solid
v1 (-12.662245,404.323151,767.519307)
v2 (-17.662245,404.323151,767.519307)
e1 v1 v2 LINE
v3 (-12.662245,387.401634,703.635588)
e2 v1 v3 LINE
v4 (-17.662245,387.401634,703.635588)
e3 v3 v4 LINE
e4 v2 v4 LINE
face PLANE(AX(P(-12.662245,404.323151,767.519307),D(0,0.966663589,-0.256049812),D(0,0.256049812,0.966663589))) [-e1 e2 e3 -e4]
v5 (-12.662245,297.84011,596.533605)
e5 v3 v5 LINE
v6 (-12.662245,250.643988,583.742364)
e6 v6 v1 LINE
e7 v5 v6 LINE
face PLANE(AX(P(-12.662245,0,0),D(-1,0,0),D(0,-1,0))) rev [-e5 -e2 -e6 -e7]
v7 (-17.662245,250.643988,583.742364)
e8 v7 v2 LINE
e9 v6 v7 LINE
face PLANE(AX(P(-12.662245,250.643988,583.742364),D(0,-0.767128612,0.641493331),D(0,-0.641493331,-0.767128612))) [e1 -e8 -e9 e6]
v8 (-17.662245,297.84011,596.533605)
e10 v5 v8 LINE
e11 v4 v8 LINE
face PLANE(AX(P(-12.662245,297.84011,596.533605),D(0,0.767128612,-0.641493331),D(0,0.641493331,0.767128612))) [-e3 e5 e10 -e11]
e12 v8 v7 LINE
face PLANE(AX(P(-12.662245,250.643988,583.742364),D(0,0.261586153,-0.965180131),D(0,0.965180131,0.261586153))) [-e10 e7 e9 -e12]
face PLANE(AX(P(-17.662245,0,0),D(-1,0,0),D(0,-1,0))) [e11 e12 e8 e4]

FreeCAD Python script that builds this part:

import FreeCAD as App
import Part
import Sketcher

doc = App.newDocument("Part")
params = doc.addObject("Spreadsheet::Sheet", "Params")
for row, (alias, value) in enumerate([
    ("pad1_length", "5 mm"),
], start=1):
    params.set(f"A{row}", alias)
    params.set(f"B{row}", "=" + value)
    params.setAlias(f"B{row}", alias)

body = doc.addObject("PartDesign::Body", "Body")

# Sketch on YZ plane
sketch1 = body.newObject("Sketcher::SketchObject", "Sketch")
sketch1.AttachmentSupport = (doc.getObject("YZ_Plane"), [""])
sketch1.MapMode = "FlatFace"
sketch1.AttachmentOffset = App.Placement(App.Vector(0, 0, -17.662245), App.Rotation())
sketch1.addGeometry([
    Part.LineSegment(App.Vector(251, 584, 0), App.Vector(404, 768, 0)),
    Part.LineSegment(App.Vector(404, 768, 0), App.Vector(387, 704, 0)),
    Part.LineSegment(App.Vector(387, 704, 0), App.Vector(298, 597, 0)),
    Part.LineSegment(App.Vector(298, 597, 0), App.Vector(251, 584, 0)),
], False)
sketch1.addConstraint([
    Sketcher.Constraint("Coincident", 0, 2, 1, 1),
    Sketcher.Constraint("Coincident", 1, 2, 2, 1),
    Sketcher.Constraint("Coincident", 2, 2, 3, 1),
    Sketcher.Constraint("Coincident", 3, 2, 0, 1),
    Sketcher.Constraint("Parallel", 0, 2),
    Sketcher.Constraint("DistanceY", 2, 2, 0, 2, 170.985701),
    Sketcher.Constraint("Distance", 0, 239.564709),
    Sketcher.Constraint("Distance", 3, 48.898772),
    Sketcher.Constraint("DistanceX", -1, 1, 0, 2, 404.323151),
    Sketcher.Constraint("DistanceX", -1, 1, 2, 2, 297.84011),
    Sketcher.Constraint("DistanceY", 1, 2, 0, 2, 63.883719),
    Sketcher.Constraint("DistanceY", -1, 1, 0, 2, 767.519307),
])
pad1 = body.newObject("PartDesign::Pad", "Pad")
pad1.Profile = sketch1
pad1.setExpression("Length", "Params.pad1_length")

doc.recompute()
